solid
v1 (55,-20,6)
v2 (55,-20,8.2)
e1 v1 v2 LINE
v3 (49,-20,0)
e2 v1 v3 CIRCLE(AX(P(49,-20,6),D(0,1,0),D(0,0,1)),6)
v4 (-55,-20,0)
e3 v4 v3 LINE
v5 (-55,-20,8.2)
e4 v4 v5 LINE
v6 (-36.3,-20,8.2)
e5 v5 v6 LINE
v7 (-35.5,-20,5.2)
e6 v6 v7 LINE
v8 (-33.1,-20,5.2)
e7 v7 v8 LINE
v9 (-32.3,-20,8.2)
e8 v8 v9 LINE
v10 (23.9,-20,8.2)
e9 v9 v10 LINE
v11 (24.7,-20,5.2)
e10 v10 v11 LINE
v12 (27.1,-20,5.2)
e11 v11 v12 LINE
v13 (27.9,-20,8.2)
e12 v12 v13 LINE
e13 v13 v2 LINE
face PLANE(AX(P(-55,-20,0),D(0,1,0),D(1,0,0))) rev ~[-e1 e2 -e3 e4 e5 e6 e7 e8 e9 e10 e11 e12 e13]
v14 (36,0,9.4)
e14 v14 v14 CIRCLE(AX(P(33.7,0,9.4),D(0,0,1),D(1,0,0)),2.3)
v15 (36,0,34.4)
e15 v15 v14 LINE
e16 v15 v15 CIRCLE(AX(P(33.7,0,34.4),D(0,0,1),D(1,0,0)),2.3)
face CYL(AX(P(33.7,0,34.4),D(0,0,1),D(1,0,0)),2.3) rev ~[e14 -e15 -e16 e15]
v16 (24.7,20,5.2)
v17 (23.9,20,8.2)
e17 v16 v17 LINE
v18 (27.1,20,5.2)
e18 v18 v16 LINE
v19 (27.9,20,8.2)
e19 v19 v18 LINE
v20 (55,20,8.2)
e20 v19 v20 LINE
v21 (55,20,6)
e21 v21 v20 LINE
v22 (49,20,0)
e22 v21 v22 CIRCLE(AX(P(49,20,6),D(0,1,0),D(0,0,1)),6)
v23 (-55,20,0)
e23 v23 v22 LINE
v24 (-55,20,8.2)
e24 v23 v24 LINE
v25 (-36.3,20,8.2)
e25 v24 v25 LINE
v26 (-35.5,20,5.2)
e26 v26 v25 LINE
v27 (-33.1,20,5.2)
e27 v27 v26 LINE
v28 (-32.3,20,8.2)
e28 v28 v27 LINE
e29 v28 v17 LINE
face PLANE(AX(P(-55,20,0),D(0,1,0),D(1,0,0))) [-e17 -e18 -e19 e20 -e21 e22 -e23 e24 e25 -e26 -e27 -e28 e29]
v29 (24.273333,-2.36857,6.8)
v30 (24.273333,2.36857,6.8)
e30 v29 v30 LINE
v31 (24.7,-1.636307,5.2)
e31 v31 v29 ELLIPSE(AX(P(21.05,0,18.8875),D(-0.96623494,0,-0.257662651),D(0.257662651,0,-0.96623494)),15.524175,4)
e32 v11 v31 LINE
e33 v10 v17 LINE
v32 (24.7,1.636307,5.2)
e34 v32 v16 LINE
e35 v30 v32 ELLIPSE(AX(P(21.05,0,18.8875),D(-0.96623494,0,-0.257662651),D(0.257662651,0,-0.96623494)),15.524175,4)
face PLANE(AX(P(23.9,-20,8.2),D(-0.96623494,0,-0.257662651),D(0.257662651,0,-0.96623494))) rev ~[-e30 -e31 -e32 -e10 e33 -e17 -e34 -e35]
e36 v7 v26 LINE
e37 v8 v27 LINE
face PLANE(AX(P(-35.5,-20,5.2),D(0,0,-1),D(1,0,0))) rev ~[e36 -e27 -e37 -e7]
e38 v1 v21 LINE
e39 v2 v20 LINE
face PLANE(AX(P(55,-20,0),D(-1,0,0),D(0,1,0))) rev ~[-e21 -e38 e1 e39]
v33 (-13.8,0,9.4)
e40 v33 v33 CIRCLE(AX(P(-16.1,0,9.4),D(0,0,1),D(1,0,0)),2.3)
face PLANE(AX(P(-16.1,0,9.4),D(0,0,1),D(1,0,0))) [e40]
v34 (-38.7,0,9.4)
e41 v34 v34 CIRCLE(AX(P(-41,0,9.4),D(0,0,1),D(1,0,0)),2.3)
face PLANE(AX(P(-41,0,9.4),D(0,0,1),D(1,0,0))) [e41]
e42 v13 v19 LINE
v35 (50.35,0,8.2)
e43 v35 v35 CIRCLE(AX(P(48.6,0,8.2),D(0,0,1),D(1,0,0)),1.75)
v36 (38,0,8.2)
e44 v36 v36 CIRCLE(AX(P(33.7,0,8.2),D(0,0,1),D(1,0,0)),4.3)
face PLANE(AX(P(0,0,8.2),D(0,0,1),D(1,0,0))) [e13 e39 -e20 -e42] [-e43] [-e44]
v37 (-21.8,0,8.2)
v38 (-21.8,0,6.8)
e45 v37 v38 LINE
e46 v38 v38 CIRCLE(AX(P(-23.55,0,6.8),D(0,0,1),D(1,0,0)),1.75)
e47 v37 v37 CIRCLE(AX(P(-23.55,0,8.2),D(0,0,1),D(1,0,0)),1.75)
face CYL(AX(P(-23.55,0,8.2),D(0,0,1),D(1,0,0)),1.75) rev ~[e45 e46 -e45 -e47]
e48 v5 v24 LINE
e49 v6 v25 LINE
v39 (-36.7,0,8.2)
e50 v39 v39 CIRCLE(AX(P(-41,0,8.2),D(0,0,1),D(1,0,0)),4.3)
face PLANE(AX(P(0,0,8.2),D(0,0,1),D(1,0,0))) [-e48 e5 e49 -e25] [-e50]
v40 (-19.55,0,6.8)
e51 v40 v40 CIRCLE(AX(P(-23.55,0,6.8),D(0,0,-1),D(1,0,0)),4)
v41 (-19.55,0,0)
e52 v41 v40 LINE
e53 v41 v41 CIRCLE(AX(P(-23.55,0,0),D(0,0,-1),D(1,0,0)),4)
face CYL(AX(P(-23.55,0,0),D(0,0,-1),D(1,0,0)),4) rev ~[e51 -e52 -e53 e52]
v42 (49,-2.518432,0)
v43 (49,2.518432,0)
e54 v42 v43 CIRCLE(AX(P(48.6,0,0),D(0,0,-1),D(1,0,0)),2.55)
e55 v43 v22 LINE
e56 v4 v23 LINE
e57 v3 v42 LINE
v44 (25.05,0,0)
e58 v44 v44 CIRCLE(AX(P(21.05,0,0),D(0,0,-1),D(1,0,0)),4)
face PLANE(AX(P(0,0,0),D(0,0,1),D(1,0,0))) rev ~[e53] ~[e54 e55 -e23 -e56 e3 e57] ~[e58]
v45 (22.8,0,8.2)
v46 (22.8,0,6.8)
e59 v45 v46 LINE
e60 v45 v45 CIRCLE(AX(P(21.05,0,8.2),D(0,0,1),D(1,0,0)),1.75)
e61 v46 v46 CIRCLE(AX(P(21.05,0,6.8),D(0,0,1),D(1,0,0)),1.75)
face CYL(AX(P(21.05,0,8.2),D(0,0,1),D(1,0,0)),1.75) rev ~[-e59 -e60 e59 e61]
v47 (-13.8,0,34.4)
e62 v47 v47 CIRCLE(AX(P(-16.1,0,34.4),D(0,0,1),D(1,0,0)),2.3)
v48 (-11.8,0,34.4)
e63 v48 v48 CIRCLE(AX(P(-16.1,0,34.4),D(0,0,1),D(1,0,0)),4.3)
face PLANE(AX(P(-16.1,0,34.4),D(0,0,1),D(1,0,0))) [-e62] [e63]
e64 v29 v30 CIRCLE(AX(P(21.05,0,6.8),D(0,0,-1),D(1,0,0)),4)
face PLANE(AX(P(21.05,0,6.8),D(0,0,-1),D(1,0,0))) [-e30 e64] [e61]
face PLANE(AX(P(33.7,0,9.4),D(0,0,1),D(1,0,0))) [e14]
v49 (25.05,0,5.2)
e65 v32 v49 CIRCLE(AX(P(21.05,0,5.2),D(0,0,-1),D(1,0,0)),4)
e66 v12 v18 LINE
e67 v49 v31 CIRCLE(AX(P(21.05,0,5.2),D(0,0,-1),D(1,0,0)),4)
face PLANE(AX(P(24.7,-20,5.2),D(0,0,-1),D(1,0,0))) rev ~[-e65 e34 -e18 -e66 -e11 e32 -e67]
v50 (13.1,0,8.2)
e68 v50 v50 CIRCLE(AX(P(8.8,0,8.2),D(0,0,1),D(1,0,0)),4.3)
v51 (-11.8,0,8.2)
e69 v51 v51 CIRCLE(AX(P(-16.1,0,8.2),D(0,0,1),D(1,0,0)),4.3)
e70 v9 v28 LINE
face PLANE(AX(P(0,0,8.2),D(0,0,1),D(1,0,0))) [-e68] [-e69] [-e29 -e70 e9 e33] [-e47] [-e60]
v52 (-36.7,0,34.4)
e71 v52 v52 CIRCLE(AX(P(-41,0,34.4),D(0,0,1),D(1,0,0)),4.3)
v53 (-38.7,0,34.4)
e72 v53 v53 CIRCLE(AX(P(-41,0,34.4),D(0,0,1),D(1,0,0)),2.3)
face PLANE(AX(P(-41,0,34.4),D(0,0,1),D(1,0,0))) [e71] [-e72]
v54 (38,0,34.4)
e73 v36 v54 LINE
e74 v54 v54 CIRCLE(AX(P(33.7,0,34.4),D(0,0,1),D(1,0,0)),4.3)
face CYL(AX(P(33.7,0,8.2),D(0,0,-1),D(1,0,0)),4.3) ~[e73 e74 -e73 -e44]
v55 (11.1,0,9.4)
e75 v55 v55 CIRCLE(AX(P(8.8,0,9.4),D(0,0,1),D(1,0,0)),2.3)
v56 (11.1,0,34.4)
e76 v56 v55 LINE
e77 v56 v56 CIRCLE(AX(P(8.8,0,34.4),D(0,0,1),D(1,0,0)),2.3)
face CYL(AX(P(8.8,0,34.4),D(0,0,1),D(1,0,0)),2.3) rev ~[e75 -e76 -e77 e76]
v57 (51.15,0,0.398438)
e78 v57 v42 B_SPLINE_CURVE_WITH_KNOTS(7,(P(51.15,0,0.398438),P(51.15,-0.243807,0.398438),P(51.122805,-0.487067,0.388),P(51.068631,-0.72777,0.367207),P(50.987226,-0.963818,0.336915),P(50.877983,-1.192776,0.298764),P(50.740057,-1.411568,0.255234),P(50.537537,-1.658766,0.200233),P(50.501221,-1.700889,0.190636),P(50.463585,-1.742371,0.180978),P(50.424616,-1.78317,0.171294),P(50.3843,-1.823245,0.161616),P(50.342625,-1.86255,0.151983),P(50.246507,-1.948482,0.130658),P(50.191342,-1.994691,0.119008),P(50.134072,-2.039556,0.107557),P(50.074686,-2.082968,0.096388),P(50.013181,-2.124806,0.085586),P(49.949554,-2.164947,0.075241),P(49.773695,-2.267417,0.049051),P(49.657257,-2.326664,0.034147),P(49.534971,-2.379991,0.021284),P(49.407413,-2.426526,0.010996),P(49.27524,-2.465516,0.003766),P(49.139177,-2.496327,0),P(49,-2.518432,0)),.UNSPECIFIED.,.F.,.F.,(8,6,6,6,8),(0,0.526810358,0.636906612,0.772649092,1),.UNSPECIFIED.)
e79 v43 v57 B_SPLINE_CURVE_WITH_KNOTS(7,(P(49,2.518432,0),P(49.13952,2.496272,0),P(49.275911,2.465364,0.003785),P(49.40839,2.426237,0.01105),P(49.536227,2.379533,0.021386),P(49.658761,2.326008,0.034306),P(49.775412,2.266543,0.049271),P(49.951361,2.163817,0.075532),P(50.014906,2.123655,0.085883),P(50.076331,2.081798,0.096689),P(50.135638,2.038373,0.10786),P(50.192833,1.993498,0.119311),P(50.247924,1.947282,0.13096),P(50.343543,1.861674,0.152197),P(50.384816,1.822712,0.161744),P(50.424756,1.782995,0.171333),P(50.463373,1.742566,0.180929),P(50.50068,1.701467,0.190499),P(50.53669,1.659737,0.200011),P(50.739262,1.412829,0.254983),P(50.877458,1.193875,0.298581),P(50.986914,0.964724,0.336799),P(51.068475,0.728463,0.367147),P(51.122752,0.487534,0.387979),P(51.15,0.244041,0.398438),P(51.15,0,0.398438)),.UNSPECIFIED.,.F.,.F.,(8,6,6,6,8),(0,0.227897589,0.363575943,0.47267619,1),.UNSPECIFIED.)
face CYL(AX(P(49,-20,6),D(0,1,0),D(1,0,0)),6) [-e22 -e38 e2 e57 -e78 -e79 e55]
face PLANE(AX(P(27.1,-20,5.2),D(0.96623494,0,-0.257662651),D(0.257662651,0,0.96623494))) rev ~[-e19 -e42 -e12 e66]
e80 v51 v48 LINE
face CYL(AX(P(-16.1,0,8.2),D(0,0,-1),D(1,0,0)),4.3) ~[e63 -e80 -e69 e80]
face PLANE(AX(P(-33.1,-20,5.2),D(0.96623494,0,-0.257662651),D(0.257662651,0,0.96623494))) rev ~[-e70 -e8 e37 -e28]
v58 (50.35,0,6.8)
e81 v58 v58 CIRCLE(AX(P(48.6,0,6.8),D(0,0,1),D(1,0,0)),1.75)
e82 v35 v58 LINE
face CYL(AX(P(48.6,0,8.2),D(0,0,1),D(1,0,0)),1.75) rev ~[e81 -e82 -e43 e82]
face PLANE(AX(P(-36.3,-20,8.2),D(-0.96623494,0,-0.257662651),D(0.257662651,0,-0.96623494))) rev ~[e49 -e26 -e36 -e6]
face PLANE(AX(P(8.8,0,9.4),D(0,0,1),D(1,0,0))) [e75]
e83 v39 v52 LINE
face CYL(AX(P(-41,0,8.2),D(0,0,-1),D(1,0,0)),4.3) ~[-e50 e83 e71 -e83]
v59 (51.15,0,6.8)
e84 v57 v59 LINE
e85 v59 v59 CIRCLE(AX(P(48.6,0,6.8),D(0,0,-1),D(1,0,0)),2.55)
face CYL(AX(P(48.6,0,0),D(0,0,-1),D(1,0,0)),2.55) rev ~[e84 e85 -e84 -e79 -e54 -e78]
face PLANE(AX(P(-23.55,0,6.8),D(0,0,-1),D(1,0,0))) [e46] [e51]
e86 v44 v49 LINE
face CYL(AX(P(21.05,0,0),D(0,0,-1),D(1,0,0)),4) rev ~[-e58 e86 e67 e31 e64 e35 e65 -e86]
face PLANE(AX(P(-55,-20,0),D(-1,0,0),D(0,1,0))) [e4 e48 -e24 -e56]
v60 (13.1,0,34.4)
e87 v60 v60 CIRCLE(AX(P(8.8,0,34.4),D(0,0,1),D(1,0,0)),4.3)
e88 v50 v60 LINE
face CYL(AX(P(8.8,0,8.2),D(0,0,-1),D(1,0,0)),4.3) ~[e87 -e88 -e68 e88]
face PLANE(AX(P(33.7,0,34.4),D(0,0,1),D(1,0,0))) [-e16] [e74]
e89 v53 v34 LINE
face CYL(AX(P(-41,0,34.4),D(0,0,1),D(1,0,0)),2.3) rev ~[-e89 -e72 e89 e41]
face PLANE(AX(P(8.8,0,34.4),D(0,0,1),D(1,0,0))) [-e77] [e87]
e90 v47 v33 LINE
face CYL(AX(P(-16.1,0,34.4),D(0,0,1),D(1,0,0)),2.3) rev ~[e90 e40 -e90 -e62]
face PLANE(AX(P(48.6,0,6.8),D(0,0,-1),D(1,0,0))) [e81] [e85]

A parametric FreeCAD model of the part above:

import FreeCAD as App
import Part
import Sketcher
Q = App.Units.Quantity


def edges_at(feature, points):
    """Names of the edges that pass closest to the given points."""
    edges = feature.Shape.Edges
    near = lambda p: min(range(len(edges)), key=lambda i: edges[i].distToShape(Part.Vertex(*p))[0])
    return sorted({f"Edge{near(p) + 1}" for p in points})

doc = App.newDocument("Part")
body = doc.addObject("PartDesign::Body", "Body")

sketch1 = doc.addObject("Sketcher::SketchObject", "Sketch")
body.addObject(sketch1)
sketch1.AttachmentSupport = (doc.XY_Plane, [""])
sketch1.MapMode = "FlatFace"
sketch1.addGeometry([
    Part.LineSegment(App.Vector(-55, 20, 0), App.Vector(-55, -20, 0)),
    Part.LineSegment(App.Vector(-55, -20, 0), App.Vector(55, -20, 0)),
    Part.LineSegment(App.Vector(55, -20, 0), App.Vector(55, 20, 0)),
    Part.LineSegment(App.Vector(55, 20, 0), App.Vector(-55, 20, 0)),
], False)
sketch1.addConstraint([
    Sketcher.Constraint("Coincident", 0, 2, 1, 1),
    Sketcher.Constraint("Coincident", 1, 2, 2, 1),
    Sketcher.Constraint("Coincident", 2, 2, 3, 1),
    Sketcher.Constraint("Coincident", 3, 2, 0, 1),
    Sketcher.Constraint("Vertical", 0),
    Sketcher.Constraint("Horizontal", 1),
    Sketcher.Constraint("Vertical", 2),
    Sketcher.Constraint("Horizontal", 3),
    Sketcher.Constraint("Symmetric", 0, 2, 2, 2, -1, 1),
    Sketcher.Constraint("DistanceX", 1, 1, 1, 2, Q("110 mm")),
    Sketcher.Constraint("DistanceY", 0, 2, 0, 1, Q("40 mm")),
])
pad1 = doc.addObject("PartDesign::Pad", "Pad")
body.addObject(pad1)
pad1.Profile = sketch1
pad1.Length = 8.2
doc.recompute()

fillet = doc.addObject("PartDesign::Fillet", "Fillet")
body.addObject(fillet)
fillet.Base = (pad1, edges_at(pad1, [(55, 0, 0)]))
fillet.Radius = 6

sketch2 = doc.addObject("Sketcher::SketchObject", "Sketch001")
body.addObject(sketch2)
sketch2.AttachmentSupport = (doc.XY_Plane, [""])
sketch2.MapMode = "FlatFace"
sketch2.AttachmentOffset = App.Placement(App.Vector(0, 0, 8.2), App.Rotation())
sketch2.addGeometry([
    Part.Circle(App.Vector(-41, 0, 0), App.Vector(0, 0, 1), 4.3),
    Part.Circle(App.Vector(-16.1, 0, 0), App.Vector(0, 0, 1), 4.3),
    Part.Circle(App.Vector(8.8, 0, 0), App.Vector(0, 0, 1), 4.3),
    Part.Circle(App.Vector(33.7, 0, 0), App.Vector(0, 0, 1), 4.3),
], False)
sketch2.addConstraint([
    Sketcher.Constraint("Equal", 0, 1),
    Sketcher.Constraint("Equal", 1, 2),
    Sketcher.Constraint("Equal", 2, 3),
    Sketcher.Constraint("PointOnObject", 0, 3, -1),
    Sketcher.Constraint("PointOnObject", 1, 3, -1),
    Sketcher.Constraint("PointOnObject", 2, 3, -1),
    Sketcher.Constraint("PointOnObject", 3, 3, -1),
    Sketcher.Constraint("Diameter", 0, Q("8.6 mm")),
    Sketcher.Constraint("DistanceX", 0, 3, -1, 1, Q("41 mm")),
    Sketcher.Constraint("DistanceX", 1, 3, -1, 1, Q("16.1 mm")),
    Sketcher.Constraint("DistanceX", -1, 1, 2, 3, Q("8.8 mm")),
    Sketcher.Constraint("DistanceX", -1, 1, 3, 3, Q("33.7 mm")),
])
pad2 = doc.addObject("PartDesign::Pad", "Pad001")
body.addObject(pad2)
pad2.Profile = sketch2
pad2.Length = 26.2

sketch3 = doc.addObject("Sketcher::SketchObject", "Sketch002")
body.addObject(sketch3)
sketch3.AttachmentSupport = (doc.XY_Plane, [""])
sketch3.MapMode = "FlatFace"
sketch3.addGeometry([
    Part.Circle(App.Vector(48.6, 0, 0), App.Vector(0, 0, 1), 2.5),
    Part.Circle(App.Vector(21.1, 0, 0), App.Vector(0, 0, 1), 4),
    Part.Circle(App.Vector(-23.6, 0, 0), App.Vector(0, 0, 1), 4),
], False)
sketch3.addConstraint([
    Sketcher.Constraint("Equal", 1, 2),
    Sketcher.Constraint("PointOnObject", 0, 3, -1),
    Sketcher.Constraint("PointOnObject", 1, 3, -1),
    Sketcher.Constraint("PointOnObject", 2, 3, -1),
    Sketcher.Constraint("Diameter", 1, Q("8 mm")),
    Sketcher.Constraint("Diameter", 0, Q("5.1 mm")),
    Sketcher.Constraint("DistanceX", -1, 1, 0, 3, Q("48.6 mm")),
    Sketcher.Constraint("DistanceX", 2, 3, 1, 3, Q("44.6 mm")),
    Sketcher.Constraint("DistanceX", -1, 1, 1, 3, Q("21.05 mm")),
])
pocket1 = doc.addObject("PartDesign::Pocket", "Pocket")
body.addObject(pocket1)
pocket1.Profile = sketch3
pocket1.Length = 6.8
pocket1.Reversed = True

sketch4 = doc.addObject("Sketcher::SketchObject", "Sketch003")
body.addObject(sketch4)
sketch4.AttachmentSupport = (doc.XY_Plane, [""])
sketch4.MapMode = "FlatFace"
sketch4.AttachmentOffset = App.Placement(App.Vector(0, 0, 8.2), App.Rotation())
sketch4.addGeometry([
    Part.Circle(App.Vector(48.6, 0, 0), App.Vector(0, 0, 1), 1.8),
    Part.Circle(App.Vector(21.1, 0, 0), App.Vector(0, 0, 1), 1.8),
    Part.Circle(App.Vector(-23.6, 0, 0), App.Vector(0, 0, 1), 1.8),
], False)
sketch4.addConstraint([
    Sketcher.Constraint("Equal", 0, 1),
    Sketcher.Constraint("Equal", 1, 2),
    Sketcher.Constraint("PointOnObject", 0, 3, -1),
    Sketcher.Constraint("PointOnObject", 1, 3, -1),
    Sketcher.Constraint("PointOnObject", 2, 3, -1),
    Sketcher.Constraint("Diameter", 0, Q("3.5 mm")),
    Sketcher.Constraint("DistanceX", -1, 1, 0, 3, Q("48.6 mm")),
    Sketcher.Constraint("DistanceX", 2, 3, 1, 3, Q("44.6 mm")),
    Sketcher.Constraint("DistanceX", -1, 1, 1, 3, Q("21.05 mm")),
])
pocket2 = doc.addObject("PartDesign::Pocket", "Pocket001")
body.addObject(pocket2)
pocket2.Profile = sketch4
pocket2.Type = "ThroughAll"

sketch5 = doc.addObject("Sketcher::SketchObject", "Sketch004")
body.addObject(sketch5)
sketch5.AttachmentSupport = (doc.XZ_Plane, [""])
sketch5.MapMode = "FlatFace"
sketch5.AttachmentOffset = App.Placement(App.Vector(0, 0, 20), App.Rotation())
sketch5.addGeometry([
    Part.LineSegment(App.Vector(-32.3, 8.2, 0), App.Vector(-36.3, 8.2, 0)),
    Part.LineSegment(App.Vector(-36.3, 8.2, 0), App.Vector(-35.5, 5.2, 0)),
    Part.LineSegment(App.Vector(-35.5, 5.2, 0), App.Vector(-33.1, 5.2, 0)),
    Part.LineSegment(App.Vector(-33.1, 5.2, 0), App.Vector(-32.3, 8.2, 0)),
    Part.LineSegment(App.Vector(27.9, 8.2, 0), App.Vector(23.9, 8.2, 0)),
    Part.LineSegment(App.Vector(23.9, 8.2, 0), App.Vector(24.7, 5.2, 0)),
    Part.LineSegment(App.Vector(24.7, 5.2, 0), App.Vector(27.1, 5.2, 0)),
    Part.LineSegment(App.Vector(27.1, 5.2, 0), App.Vector(27.9, 8.2, 0)),
], False)
sketch5.addConstraint([
    Sketcher.Constraint("Coincident", 0, 2, 1, 1),
    Sketcher.Constraint("Coincident", 1, 2, 2, 1),
    Sketcher.Constraint("Coincident", 2, 2, 3, 1),
    Sketcher.Constraint("Coincident", 3, 2, 0, 1),
    Sketcher.Constraint("Coincident", 4, 2, 5, 1),
    Sketcher.Constraint("Coincident", 5, 2, 6, 1),
    Sketcher.Constraint("Coincident", 6, 2, 7, 1),
    Sketcher.Constraint("Coincident", 7, 2, 4, 1),
    Sketcher.Constraint("Horizontal", 0),
    Sketcher.Constraint("Horizontal", 2),
    Sketcher.Constraint("Horizontal", 4),
    Sketcher.Constraint("Horizontal", 6),
    Sketcher.Constraint("Parallel", 1, 5),
    Sketcher.Constraint("Parallel", 3, 7),
    Sketcher.Constraint("Horizontal", 3, 2, 4, 2),
    Sketcher.Constraint("Horizontal", 2, 2, 5, 2),
    Sketcher.Constraint("Equal", 0, 4),
    Sketcher.Constraint("Equal", 1, 3),
    Sketcher.Constraint("DistanceX", 0, 2, 0, 1, Q("4 mm")),
    Sketcher.Constraint("DistanceX", 2, 1, 2, 2, Q("2.4 mm")),
    Sketcher.Constraint("DistanceY", 1, 2, 0, 2, Q("3 mm")),
    Sketcher.Constraint("DistanceX", 2, 2, 4, 2, Q("57 mm")),
    Sketcher.Constraint("DistanceX", 0, 2, -1, 1, Q("36.3 mm")),
    Sketcher.Constraint("DistanceY", -1, 1, 0, 2, Q("8.2 mm")),
])
pocket3 = doc.addObject("PartDesign::Pocket", "Pocket002")
body.addObject(pocket3)
pocket3.Profile = sketch5
pocket3.Type = "ThroughAll"

sketch6 = doc.addObject("Sketcher::SketchObject", "Sketch005")
body.addObject(sketch6)
sketch6.AttachmentSupport = (doc.XY_Plane, [""])
sketch6.MapMode = "FlatFace"
sketch6.AttachmentOffset = App.Placement(App.Vector(0, 0, 34.4), App.Rotation())
sketch6.addGeometry([
    Part.Circle(App.Vector(-41, 0, 0), App.Vector(0, 0, 1), 2.3),
    Part.Circle(App.Vector(-16.1, 0, 0), App.Vector(0, 0, 1), 2.3),
    Part.Circle(App.Vector(8.8, 0, 0), App.Vector(0, 0, 1), 2.3),
    Part.Circle(App.Vector(33.7, 0, 0), App.Vector(0, 0, 1), 2.3),
], False)
sketch6.addConstraint([
    Sketcher.Constraint("Equal", 0, 1),
    Sketcher.Constraint("Equal", 1, 2),
    Sketcher.Constraint("Equal", 2, 3),
    Sketcher.Constraint("PointOnObject", 0, 3, -1),
    Sketcher.Constraint("PointOnObject", 1, 3, -1),
    Sketcher.Constraint("PointOnObject", 2, 3, -1),
    Sketcher.Constraint("PointOnObject", 3, 3, -1),
    Sketcher.Constraint("Diameter", 0, Q("4.6 mm")),
    Sketcher.Constraint("DistanceX", 0, 3, -1, 1, Q("41 mm")),
    Sketcher.Constraint("DistanceX", 1, 3, -1, 1, Q("16.1 mm")),
    Sketcher.Constraint("DistanceX", -1, 1, 2, 3, Q("8.8 mm")),
    Sketcher.Constraint("DistanceX", -1, 1, 3, 3, Q("33.7 mm")),
])
pocket4 = doc.addObject("PartDesign::Pocket", "Pocket003")
body.addObject(pocket4)
pocket4.Profile = sketch6
pocket4.Length = 25

doc.recompute()
